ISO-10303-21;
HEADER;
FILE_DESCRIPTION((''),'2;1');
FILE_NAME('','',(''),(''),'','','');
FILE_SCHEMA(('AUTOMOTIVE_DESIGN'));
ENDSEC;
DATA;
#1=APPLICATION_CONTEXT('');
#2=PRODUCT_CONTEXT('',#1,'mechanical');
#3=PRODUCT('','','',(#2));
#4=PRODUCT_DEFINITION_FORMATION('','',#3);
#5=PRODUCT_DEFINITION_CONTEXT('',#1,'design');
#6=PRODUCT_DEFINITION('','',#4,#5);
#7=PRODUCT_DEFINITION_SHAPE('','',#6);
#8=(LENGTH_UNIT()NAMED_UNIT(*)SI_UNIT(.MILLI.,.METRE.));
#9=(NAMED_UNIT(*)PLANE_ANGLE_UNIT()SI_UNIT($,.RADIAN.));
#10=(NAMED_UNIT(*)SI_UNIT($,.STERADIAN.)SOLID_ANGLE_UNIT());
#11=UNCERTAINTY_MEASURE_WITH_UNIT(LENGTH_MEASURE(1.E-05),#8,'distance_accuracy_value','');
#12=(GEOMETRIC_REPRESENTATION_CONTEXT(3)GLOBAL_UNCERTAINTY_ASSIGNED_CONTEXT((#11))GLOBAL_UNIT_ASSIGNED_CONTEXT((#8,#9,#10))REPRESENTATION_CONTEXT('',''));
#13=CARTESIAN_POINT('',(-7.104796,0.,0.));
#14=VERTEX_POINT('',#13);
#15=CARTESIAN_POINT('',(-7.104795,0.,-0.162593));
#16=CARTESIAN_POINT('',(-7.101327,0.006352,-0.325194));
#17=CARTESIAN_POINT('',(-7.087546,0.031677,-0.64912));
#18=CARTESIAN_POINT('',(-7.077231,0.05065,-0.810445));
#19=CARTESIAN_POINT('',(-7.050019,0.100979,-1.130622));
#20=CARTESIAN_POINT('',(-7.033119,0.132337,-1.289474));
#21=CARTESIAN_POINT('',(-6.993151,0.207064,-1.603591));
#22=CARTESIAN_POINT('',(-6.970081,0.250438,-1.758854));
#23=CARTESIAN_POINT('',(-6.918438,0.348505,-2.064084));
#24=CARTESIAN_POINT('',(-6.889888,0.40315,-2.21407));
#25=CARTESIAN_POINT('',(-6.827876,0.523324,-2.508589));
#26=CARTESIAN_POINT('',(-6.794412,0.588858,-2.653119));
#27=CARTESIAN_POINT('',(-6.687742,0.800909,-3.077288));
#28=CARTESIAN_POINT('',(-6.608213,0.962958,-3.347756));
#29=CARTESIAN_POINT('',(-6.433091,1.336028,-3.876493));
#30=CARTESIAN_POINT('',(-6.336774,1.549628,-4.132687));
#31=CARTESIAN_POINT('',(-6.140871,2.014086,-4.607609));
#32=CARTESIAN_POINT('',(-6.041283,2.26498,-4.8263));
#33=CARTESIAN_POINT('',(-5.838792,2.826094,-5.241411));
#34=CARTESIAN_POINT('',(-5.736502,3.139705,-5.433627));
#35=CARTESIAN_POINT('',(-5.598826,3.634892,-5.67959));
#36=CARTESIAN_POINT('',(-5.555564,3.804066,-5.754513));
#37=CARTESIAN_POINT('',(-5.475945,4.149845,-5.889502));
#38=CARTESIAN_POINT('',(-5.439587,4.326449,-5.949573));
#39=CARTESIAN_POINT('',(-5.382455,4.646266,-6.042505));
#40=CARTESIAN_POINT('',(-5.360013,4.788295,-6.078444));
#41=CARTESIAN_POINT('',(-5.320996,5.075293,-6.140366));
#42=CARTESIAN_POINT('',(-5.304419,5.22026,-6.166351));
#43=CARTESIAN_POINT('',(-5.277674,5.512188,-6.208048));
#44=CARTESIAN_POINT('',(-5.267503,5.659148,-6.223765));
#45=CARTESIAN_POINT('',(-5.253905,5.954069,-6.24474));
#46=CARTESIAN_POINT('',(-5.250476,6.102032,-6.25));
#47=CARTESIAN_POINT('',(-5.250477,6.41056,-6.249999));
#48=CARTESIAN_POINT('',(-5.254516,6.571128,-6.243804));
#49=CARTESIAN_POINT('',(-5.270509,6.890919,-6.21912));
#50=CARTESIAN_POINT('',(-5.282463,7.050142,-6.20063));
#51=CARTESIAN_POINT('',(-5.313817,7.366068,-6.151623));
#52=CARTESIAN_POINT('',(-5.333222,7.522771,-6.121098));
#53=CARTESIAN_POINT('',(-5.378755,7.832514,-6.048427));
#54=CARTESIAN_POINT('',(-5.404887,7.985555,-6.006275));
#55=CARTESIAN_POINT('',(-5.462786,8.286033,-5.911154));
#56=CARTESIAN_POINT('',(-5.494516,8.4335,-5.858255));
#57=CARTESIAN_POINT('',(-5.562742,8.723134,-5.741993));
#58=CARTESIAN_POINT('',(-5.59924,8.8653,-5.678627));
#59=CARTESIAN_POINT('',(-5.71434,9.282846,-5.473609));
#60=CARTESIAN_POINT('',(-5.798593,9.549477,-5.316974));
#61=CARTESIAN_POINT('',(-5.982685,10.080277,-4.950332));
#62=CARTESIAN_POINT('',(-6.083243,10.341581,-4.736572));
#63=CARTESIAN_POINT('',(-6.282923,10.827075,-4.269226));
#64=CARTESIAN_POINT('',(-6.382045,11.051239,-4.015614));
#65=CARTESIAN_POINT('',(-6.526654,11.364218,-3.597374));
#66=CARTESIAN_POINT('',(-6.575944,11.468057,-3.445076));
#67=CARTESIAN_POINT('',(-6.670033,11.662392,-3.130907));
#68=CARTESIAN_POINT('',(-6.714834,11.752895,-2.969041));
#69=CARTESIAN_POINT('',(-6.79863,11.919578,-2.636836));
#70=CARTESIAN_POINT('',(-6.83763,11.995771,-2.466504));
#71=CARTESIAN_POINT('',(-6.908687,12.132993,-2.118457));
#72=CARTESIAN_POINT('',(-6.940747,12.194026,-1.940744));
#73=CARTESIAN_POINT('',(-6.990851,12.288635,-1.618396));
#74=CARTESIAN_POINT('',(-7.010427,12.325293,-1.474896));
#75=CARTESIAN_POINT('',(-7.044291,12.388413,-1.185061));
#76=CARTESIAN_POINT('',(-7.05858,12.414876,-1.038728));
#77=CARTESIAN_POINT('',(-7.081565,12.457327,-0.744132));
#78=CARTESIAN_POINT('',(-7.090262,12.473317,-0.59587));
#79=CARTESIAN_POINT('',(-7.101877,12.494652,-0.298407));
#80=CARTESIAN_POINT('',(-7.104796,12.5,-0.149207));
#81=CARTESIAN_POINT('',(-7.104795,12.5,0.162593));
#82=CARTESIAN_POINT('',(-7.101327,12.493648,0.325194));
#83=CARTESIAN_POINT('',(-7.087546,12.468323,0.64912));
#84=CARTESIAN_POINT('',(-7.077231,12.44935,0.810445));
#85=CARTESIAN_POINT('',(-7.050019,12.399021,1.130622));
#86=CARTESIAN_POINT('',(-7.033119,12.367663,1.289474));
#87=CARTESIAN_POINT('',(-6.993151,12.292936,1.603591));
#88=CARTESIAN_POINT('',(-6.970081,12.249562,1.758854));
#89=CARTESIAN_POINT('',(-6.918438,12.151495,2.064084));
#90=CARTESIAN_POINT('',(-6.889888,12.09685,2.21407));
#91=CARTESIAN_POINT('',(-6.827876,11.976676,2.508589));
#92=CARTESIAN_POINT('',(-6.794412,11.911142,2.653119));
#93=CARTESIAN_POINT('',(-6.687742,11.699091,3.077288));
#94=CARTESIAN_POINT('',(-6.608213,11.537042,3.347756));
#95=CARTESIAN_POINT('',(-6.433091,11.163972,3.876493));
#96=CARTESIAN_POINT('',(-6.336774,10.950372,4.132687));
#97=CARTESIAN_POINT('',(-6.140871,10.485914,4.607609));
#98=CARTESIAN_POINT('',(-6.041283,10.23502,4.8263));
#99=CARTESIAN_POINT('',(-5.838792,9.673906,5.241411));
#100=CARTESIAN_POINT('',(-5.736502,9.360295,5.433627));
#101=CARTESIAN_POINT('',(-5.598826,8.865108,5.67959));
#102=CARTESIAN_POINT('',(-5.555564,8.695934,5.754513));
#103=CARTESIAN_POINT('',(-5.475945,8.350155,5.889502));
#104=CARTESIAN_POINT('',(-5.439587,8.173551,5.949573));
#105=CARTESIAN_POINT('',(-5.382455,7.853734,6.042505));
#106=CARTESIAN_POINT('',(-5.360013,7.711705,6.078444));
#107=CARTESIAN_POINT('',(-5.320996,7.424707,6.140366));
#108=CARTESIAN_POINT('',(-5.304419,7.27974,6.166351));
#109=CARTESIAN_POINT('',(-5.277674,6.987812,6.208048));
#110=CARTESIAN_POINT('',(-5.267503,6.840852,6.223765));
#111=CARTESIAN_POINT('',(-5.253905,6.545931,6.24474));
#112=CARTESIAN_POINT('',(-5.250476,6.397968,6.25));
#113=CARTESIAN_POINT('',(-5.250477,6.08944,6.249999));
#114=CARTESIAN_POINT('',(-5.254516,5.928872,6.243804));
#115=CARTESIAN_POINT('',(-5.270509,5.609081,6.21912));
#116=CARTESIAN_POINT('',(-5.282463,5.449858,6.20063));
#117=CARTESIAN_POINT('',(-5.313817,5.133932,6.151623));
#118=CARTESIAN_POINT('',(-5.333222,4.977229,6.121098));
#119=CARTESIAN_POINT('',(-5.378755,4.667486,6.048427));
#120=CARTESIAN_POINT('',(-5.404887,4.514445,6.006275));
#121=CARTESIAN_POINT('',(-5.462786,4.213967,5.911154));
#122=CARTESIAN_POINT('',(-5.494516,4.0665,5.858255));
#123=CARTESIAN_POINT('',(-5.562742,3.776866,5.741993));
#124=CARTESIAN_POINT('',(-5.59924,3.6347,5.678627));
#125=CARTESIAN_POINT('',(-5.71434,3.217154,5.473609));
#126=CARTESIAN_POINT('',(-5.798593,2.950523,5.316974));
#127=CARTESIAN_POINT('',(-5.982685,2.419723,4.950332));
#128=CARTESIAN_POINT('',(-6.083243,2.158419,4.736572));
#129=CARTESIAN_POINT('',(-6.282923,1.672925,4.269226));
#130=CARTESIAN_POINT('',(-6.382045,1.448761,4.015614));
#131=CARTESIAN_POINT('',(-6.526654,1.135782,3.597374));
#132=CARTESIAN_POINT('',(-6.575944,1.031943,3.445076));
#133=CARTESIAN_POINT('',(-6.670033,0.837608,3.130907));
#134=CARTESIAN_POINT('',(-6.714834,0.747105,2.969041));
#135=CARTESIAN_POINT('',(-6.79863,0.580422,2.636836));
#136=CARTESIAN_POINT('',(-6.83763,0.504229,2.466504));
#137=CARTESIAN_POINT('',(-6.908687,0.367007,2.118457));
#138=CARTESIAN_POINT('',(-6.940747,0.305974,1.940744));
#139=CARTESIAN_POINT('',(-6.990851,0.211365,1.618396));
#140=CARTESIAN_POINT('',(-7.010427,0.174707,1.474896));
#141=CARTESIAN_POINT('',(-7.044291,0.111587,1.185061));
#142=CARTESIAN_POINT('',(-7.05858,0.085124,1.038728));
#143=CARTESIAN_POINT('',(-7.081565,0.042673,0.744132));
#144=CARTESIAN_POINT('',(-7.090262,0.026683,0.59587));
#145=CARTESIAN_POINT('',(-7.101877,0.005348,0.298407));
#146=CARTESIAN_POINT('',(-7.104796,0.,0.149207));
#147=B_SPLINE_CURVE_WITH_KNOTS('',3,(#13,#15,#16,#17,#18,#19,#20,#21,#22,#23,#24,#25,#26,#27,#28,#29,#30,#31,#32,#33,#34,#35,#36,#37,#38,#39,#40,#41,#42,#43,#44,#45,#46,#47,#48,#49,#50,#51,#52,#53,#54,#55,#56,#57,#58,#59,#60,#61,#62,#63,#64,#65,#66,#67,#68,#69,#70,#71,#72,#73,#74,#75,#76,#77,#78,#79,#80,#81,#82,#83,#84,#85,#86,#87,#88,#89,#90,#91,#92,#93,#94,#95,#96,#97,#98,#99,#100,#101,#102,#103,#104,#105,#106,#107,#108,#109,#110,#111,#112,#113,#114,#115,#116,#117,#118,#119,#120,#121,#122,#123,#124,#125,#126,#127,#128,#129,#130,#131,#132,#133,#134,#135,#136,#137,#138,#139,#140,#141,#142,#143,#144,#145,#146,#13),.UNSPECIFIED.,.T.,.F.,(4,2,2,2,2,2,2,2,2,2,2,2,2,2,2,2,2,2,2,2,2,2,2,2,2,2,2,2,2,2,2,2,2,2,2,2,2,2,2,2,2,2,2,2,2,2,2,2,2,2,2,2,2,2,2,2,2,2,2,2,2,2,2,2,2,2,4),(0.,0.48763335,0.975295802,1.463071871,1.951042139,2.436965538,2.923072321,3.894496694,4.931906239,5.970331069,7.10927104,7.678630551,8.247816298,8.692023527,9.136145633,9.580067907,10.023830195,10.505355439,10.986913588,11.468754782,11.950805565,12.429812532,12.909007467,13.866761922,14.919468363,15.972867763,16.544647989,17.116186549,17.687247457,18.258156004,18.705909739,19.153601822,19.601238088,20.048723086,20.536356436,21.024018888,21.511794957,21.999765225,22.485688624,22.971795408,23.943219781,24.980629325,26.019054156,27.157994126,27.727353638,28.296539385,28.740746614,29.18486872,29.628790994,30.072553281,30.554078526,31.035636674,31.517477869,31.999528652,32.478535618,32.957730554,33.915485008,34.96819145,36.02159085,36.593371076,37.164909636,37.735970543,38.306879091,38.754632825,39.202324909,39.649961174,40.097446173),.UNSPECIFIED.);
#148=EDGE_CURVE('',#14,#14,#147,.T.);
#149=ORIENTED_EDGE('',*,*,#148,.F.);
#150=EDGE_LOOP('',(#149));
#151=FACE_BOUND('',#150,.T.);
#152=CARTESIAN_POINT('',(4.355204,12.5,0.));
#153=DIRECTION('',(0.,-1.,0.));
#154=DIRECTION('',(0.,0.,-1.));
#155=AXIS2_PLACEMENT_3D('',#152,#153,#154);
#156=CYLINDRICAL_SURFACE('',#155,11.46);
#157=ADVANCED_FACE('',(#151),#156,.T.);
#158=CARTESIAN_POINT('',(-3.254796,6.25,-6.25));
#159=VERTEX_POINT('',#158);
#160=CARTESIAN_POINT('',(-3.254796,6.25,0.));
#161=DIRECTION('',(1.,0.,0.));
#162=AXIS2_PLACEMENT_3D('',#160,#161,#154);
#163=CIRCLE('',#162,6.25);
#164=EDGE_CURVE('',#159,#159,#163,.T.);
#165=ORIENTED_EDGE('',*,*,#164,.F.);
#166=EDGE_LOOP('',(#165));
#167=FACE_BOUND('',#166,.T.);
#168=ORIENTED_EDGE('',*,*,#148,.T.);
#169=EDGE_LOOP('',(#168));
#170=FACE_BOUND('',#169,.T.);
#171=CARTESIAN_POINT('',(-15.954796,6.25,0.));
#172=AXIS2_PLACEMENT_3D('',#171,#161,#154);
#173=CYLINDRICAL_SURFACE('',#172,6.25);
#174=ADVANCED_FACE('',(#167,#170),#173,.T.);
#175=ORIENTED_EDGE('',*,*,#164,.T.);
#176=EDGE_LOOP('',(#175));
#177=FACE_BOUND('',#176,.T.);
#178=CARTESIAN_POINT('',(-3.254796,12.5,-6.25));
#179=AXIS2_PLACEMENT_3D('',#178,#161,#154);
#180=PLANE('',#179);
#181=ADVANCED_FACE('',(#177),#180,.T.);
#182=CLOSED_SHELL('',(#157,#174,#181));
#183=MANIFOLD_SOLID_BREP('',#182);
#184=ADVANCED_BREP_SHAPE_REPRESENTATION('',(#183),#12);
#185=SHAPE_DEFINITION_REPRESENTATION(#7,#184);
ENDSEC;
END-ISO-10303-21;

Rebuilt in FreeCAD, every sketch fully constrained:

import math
import FreeCAD as App
import Part
import Sketcher

doc = App.newDocument("Part")
params = doc.addObject("Spreadsheet::Sheet", "Params")
for row, (alias, value) in enumerate([
    ("sketch1_radius", "11.46 mm"),
    ("sketch1_height", "12.5 mm"),
    ("pad1_length", "12.5 mm"),
    ("sketch2_radius", "6.25 mm"),
    ("pocket1_length", "12.7 mm"),
], start=1):
    params.set(f"A{row}", alias)
    params.set(f"B{row}", "=" + value)
    params.setAlias(f"B{row}", alias)

body = doc.addObject("PartDesign::Body", "Body")

sketch1 = body.newObject("Sketcher::SketchObject", "Sketch")
sketch1.AttachmentSupport = (doc.getObject("XZ_Plane"), [""])
sketch1.MapMode = "FlatFace"
sketch1.addGeometry(Part.LineSegment(App.Vector(-3.3, -6.2, 0), App.Vector(-5.3, -6.2, 0)), False)
sketch1.addGeometry(Part.ArcOfCircle(Part.Circle(App.Vector(4.4, 0, 0), App.Vector(0, 0, 1), 11.5), math.radians(147), math.radians(213)), False)
sketch1.addGeometry(Part.LineSegment(App.Vector(-5.3, 6.2, 0), App.Vector(-3.3, 6.2, 0)), False)
sketch1.addGeometry(Part.LineSegment(App.Vector(-3.3, 6.2, 0), App.Vector(-3.3, -6.2, 0)), False)
sketch1.addConstraint(Sketcher.Constraint("Coincident", 0, 2, 1, 2))
sketch1.addConstraint(Sketcher.Constraint("Coincident", 1, 1, 2, 1))
sketch1.addConstraint(Sketcher.Constraint("Coincident", 2, 2, 3, 1))
sketch1.addConstraint(Sketcher.Constraint("Coincident", 3, 2, 0, 1))
sketch1.addConstraint(Sketcher.Constraint("Horizontal", 0))
sketch1.addConstraint(Sketcher.Constraint("Horizontal", 2))
sketch1.addConstraint(Sketcher.Constraint("Vertical", 3))
sketch1.addConstraint(Sketcher.Constraint("Symmetric", 0, 2, 1, 1, -1))
sketch1.addConstraint(Sketcher.Constraint("Radius", 1, 11.46))
sketch1.addConstraint(Sketcher.Constraint("DistanceY", 3, 2, 3, 1, 12.5))
sketch1.addConstraint(Sketcher.Constraint("DistanceX", 2, 2, 1, 3, 7.61))
sketch1.addConstraint(Sketcher.Constraint("DistanceX", -1, 1, 1, 3, 4.355204))
sketch1.setExpression("Constraints[8]", "Params.sketch1_radius")
sketch1.setExpression("Constraints[9]", "Params.sketch1_height")
pad1 = body.newObject("PartDesign::Pad", "Pad")
pad1.Profile = sketch1
pad1.setExpression("Length", "Params.pad1_length")
pad1.Reversed = True

sketch2 = body.newObject("Sketcher::SketchObject", "Sketch001")
sketch2.AttachmentSupport = (doc.getObject("YZ_Plane"), [""])
sketch2.MapMode = "FlatFace"
sketch2.AttachmentOffset = App.Placement(App.Vector(0, 0, -3.254796), App.Rotation())
sketch2.addGeometry(Part.LineSegment(App.Vector(12, 6, 0), App.Vector(6, 6, 0)), False)
sketch2.addGeometry(Part.ArcOfCircle(Part.Circle(App.Vector(6, 0, 0), App.Vector(0, 0, 1), 6), math.radians(0), math.radians(90)), False)
sketch2.addGeometry(Part.LineSegment(App.Vector(12, 0, 0), App.Vector(12, 6, 0)), False)
sketch2.addGeometry(Part.ArcOfCircle(Part.Circle(App.Vector(6, 0, 0), App.Vector(0, 0, 1), 6), math.radians(-90), math.radians(0)), False)
sketch2.addGeometry(Part.LineSegment(App.Vector(6, -6, 0), App.Vector(12, -6, 0)), False)
sketch2.addGeometry(Part.LineSegment(App.Vector(12, -6, 0), App.Vector(12, 0, 0)), False)
sketch2.addGeometry(Part.ArcOfCircle(Part.Circle(App.Vector(6, 0, 0), App.Vector(0, 0, 1), 6), math.radians(-180), math.radians(-90)), False)
sketch2.addGeometry(Part.LineSegment(App.Vector(0, 0, 0), App.Vector(0, -6, 0)), False)
sketch2.addGeometry(Part.LineSegment(App.Vector(0, -6, 0), App.Vector(6, -6, 0)), False)
sketch2.addGeometry(Part.LineSegment(App.Vector(6, 6, 0), App.Vector(0, 6, 0)), False)
sketch2.addGeometry(Part.LineSegment(App.Vector(0, 6, 0), App.Vector(0, 0, 0)), False)
sketch2.addGeometry(Part.ArcOfCircle(Part.Circle(App.Vector(6, 0, 0), App.Vector(0, 0, 1), 6), math.radians(90), math.radians(180)), False)
sketch2.addConstraint(Sketcher.Constraint("Tangent", 0, 2, 1, 2))
sketch2.addConstraint(Sketcher.Constraint("Tangent", 1, 1, 2, 1))
sketch2.addConstraint(Sketcher.Constraint("Coincident", 2, 2, 0, 1))
sketch2.addConstraint(Sketcher.Constraint("Tangent", 3, 1, 4, 1))
sketch2.addConstraint(Sketcher.Constraint("Coincident", 4, 2, 5, 1))
sketch2.addConstraint(Sketcher.Constraint("Tangent", 5, 2, 3, 2))
sketch2.addConstraint(Sketcher.Constraint("Tangent", 6, 1, 7, 1))
sketch2.addConstraint(Sketcher.Constraint("Coincident", 7, 2, 8, 1))
sketch2.addConstraint(Sketcher.Constraint("Tangent", 8, 2, 6, 2))
sketch2.addConstraint(Sketcher.Constraint("Coincident", 9, 2, 10, 1))
sketch2.addConstraint(Sketcher.Constraint("Tangent", 10, 2, 11, 2))
sketch2.addConstraint(Sketcher.Constraint("Tangent", 11, 1, 9, 1))
sketch2.addConstraint(Sketcher.Constraint("Horizontal", 0))
sketch2.addConstraint(Sketcher.Constraint("Vertical", 2))
sketch2.addConstraint(Sketcher.Constraint("Horizontal", 4))
sketch2.addConstraint(Sketcher.Constraint("Vertical", 5))
sketch2.addConstraint(Sketcher.Constraint("Vertical", 7))
sketch2.addConstraint(Sketcher.Constraint("Horizontal", 8))
sketch2.addConstraint(Sketcher.Constraint("Horizontal", 9))
sketch2.addConstraint(Sketcher.Constraint("Vertical", 10))
sketch2.addConstraint(Sketcher.Constraint("Coincident", 6, 1, -1, 1))
sketch2.addConstraint(Sketcher.Constraint("Coincident", 10, 2, -1, 1))
sketch2.addConstraint(Sketcher.Constraint("Coincident", 3, 3, 1, 3))
sketch2.addConstraint(Sketcher.Constraint("Coincident", 6, 3, 1, 3))
sketch2.addConstraint(Sketcher.Constraint("Coincident", 11, 1, 0, 2))
sketch2.addConstraint(Sketcher.Constraint("Equal", 1, 3))
sketch2.addConstraint(Sketcher.Constraint("Radius", 1, 6.25))
sketch2.setExpression("Constraints[26]", "Params.sketch2_radius")
pocket1 = body.newObject("PartDesign::Pocket", "Pocket")
pocket1.Profile = sketch2
pocket1.setExpression("Length", "Params.pocket1_length")

doc.recompute()
